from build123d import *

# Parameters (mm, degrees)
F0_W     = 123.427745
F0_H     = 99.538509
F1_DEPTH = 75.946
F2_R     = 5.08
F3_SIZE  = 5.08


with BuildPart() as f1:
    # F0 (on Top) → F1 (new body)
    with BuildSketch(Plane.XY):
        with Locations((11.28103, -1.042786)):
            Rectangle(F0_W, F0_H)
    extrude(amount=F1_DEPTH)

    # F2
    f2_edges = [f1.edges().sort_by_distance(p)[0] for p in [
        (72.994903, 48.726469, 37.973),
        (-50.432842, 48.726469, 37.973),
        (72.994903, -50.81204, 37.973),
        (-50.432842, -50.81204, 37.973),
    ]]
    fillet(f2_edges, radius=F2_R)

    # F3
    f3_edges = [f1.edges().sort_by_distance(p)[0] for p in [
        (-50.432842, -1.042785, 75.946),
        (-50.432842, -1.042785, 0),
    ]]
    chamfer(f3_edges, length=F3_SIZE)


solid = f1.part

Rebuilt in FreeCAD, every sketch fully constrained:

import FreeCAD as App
import Part
import Sketcher

V = App.Vector
Q = App.Units.Quantity


def edges_at(feature, points):
    """Names of the edges that pass closest to the given points."""
    edges = feature.Shape.Edges
    near = lambda p: min(range(len(edges)), key=lambda i: edges[i].distToShape(Part.Vertex(*p))[0])
    return sorted({f"Edge{near(p) + 1}" for p in points})


def add_polygon(sketch, points):
    """Adds a closed chain of lines whose ends are joined by coincident constraints."""
    first, n = sketch.GeometryCount, len(points)
    for a, b in zip(points, points[1:] + points[:1]):
        sketch.addGeometry(Part.LineSegment(App.Vector(*a, 0), App.Vector(*b, 0)), False)
    for i in range(n):
        sketch.addConstraint(Sketcher.Constraint("Coincident", first + i, 2, first + (i + 1) % n, 1))

doc = App.newDocument("Part")
body = doc.addObject("PartDesign::Body", "Body")

# Sketch on XY plane
sketch1 = body.newObject("Sketcher::SketchObject", "Sketch")
sketch1.AttachmentSupport = (doc.getObject("XY_Plane"), [""])
sketch1.MapMode = "FlatFace"
add_polygon(sketch1, [(-50, 49), (-50, -51), (73, -51), (73, 49)])  # lines 0-3
sketch1.addConstraint(Sketcher.Constraint("Vertical", 0))
sketch1.addConstraint(Sketcher.Constraint("Horizontal", 1))
sketch1.addConstraint(Sketcher.Constraint("Vertical", 2))
sketch1.addConstraint(Sketcher.Constraint("Horizontal", 3))
sketch1.addConstraint(Sketcher.Constraint("DistanceY", 0, 2, 0, 1, Q("99.538509 mm")))
sketch1.addConstraint(Sketcher.Constraint("DistanceX", 1, 1, 1, 2, Q("123.427745 mm")))
sketch1.addConstraint(Sketcher.Constraint("DistanceY", 0, 2, -1, 1, Q("50.812041 mm")))
sketch1.addConstraint(Sketcher.Constraint("DistanceX", 0, 2, -1, 1, Q("50.432842 mm")))
pad1 = body.newObject("PartDesign::Pad", "Pad")
pad1.Profile = sketch1
pad1.Length = Q("2.99 in")
doc.recompute()

fillet = body.newObject("PartDesign::Fillet", "Fillet")
fillet.Base = (pad1, edges_at(pad1, [
    (72.995, 48.726, 37.973),
    (-50.433, 48.726, 37.973),
    (72.995, -50.812, 37.973),
    (-50.433, -50.812, 37.973),
]))
fillet.Radius = Q("0.2 in")
doc.recompute()

chamfer = body.newObject("PartDesign::Chamfer", "Chamfer")
chamfer.Base = (fillet, edges_at(fillet, [(-50.433, -1.043, 75.946), (-50.433, -1.043, 0)]))
chamfer.Size = Q("0.2 in")

doc.recompute()
